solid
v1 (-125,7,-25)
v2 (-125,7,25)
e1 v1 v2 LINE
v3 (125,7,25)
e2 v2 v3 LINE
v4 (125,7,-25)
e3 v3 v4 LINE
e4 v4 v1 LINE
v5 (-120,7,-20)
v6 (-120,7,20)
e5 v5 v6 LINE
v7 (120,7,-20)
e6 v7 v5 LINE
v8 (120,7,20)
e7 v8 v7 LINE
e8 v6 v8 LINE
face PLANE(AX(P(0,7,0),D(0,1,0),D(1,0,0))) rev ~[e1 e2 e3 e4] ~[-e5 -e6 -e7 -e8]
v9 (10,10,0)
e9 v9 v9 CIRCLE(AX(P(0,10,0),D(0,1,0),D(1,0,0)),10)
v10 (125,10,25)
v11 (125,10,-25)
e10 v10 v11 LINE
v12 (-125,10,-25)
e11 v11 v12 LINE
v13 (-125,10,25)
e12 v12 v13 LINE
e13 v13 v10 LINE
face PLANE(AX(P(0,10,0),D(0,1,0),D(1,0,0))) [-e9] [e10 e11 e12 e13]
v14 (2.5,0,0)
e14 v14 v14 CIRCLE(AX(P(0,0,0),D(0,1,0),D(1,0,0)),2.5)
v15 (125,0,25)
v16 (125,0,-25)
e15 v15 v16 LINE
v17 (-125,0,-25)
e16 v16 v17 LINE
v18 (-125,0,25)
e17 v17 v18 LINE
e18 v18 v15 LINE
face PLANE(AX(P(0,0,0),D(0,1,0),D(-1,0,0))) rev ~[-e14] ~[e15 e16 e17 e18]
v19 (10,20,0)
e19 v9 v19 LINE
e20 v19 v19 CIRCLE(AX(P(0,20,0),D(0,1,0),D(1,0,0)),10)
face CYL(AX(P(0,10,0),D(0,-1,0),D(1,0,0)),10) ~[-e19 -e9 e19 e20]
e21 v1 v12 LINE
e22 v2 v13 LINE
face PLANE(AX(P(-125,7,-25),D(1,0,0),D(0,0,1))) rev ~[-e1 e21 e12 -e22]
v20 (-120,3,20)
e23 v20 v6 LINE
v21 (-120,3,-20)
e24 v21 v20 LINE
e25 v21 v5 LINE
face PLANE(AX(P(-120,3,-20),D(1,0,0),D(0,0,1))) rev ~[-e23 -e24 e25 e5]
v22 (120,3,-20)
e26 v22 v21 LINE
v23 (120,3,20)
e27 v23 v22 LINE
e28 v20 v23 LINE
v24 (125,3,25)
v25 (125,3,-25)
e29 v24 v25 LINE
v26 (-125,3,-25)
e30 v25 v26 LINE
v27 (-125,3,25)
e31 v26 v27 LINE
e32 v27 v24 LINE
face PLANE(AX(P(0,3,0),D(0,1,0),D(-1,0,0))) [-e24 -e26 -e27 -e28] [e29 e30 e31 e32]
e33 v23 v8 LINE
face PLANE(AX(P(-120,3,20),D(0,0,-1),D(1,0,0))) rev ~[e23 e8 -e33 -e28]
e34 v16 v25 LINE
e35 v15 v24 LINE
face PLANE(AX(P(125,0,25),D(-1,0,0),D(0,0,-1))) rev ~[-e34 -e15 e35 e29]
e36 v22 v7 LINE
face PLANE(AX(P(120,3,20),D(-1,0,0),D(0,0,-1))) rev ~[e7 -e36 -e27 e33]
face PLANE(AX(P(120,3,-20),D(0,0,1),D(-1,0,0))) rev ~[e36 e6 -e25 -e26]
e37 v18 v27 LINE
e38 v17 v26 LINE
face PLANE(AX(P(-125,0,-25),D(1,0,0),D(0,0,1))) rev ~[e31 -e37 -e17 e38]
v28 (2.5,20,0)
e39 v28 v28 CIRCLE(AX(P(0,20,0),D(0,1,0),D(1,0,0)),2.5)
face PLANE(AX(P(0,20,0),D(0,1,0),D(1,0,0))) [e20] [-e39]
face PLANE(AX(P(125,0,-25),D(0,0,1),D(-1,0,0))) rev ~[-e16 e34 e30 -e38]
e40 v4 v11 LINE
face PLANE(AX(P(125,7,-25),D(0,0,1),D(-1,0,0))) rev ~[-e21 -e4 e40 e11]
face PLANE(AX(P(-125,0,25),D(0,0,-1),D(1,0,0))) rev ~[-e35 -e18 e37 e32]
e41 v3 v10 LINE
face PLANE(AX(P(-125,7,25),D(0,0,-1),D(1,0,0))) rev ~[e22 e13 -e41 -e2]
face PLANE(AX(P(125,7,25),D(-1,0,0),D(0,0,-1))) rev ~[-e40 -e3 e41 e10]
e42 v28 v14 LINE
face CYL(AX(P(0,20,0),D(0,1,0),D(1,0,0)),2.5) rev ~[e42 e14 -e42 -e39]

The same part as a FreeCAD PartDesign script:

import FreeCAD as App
import Part
import Sketcher

V = App.Vector
Q = App.Units.Quantity

doc = App.newDocument("Part")
body = doc.addObject("PartDesign::Body", "Body")

sketch1 = body.newObject("Sketcher::SketchObject", "Sketch")
sketch1.AttachmentSupport = (doc.getObject("XZ_Plane"), [""])
sketch1.MapMode = "FlatFace"
sketch1.addGeometry([
    Part.LineSegment(V(125, 25, 0), V(125, -25, 0)),
    Part.LineSegment(V(125, -25, 0), V(-125, -25, 0)),
    Part.LineSegment(V(-125, -25, 0), V(-125, 25, 0)),
    Part.LineSegment(V(-125, 25, 0), V(125, 25, 0)),
], False)
sketch1.addConstraint([
    Sketcher.Constraint("Coincident", 0, 2, 1, 1),
    Sketcher.Constraint("Coincident", 1, 2, 2, 1),
    Sketcher.Constraint("Coincident", 2, 2, 3, 1),
    Sketcher.Constraint("Coincident", 3, 2, 0, 1),
    Sketcher.Constraint("Vertical", 0),
    Sketcher.Constraint("Horizontal", 1),
    Sketcher.Constraint("Vertical", 2),
    Sketcher.Constraint("Horizontal", 3),
    Sketcher.Constraint("Symmetric", 0, 2, 2, 2, -1, 1),
    Sketcher.Constraint("DistanceX", 1, 2, 1, 1, Q("250 mm")),
    Sketcher.Constraint("DistanceY", 0, 2, 0, 1, Q("50 mm")),
])
pad1 = body.newObject("PartDesign::Pad", "Pad")
pad1.Profile = sketch1
pad1.Length = 3
pad1.Reversed = True

sketch2 = body.newObject("Sketcher::SketchObject", "Sketch001")
sketch2.AttachmentSupport = (doc.getObject("XZ_Plane"), [""])
sketch2.MapMode = "FlatFace"
sketch2.AttachmentOffset = App.Placement(V(0, 0, -3), App.Rotation())
sketch2.addGeometry([
    Part.LineSegment(V(120, 20, 0), V(120, -20, 0)),
    Part.LineSegment(V(120, -20, 0), V(-120, -20, 0)),
    Part.LineSegment(V(-120, -20, 0), V(-120, 20, 0)),
    Part.LineSegment(V(-120, 20, 0), V(120, 20, 0)),
], False)
sketch2.addConstraint([
    Sketcher.Constraint("Coincident", 0, 2, 1, 1),
    Sketcher.Constraint("Coincident", 1, 2, 2, 1),
    Sketcher.Constraint("Coincident", 2, 2, 3, 1),
    Sketcher.Constraint("Coincident", 3, 2, 0, 1),
    Sketcher.Constraint("Vertical", 0),
    Sketcher.Constraint("Horizontal", 1),
    Sketcher.Constraint("Vertical", 2),
    Sketcher.Constraint("Horizontal", 3),
    Sketcher.Constraint("Symmetric", 0, 2, 2, 2, -1, 1),
    Sketcher.Constraint("DistanceX", 1, 2, 1, 1, Q("240 mm")),
    Sketcher.Constraint("DistanceY", 0, 2, 0, 1, Q("40 mm")),
])
pad2 = body.newObject("PartDesign::Pad", "Pad001")
pad2.Profile = sketch2
pad2.Length = 4
pad2.Reversed = True

sketch3 = body.newObject("Sketcher::SketchObject", "Sketch002")
sketch3.AttachmentSupport = (doc.getObject("XZ_Plane"), [""])
sketch3.MapMode = "FlatFace"
sketch3.AttachmentOffset = App.Placement(V(0, 0, -7), App.Rotation())
sketch3.addGeometry([
    Part.LineSegment(V(125, 25, 0), V(125, -25, 0)),
    Part.LineSegment(V(125, -25, 0), V(-125, -25, 0)),
    Part.LineSegment(V(-125, -25, 0), V(-125, 25, 0)),
    Part.LineSegment(V(-125, 25, 0), V(125, 25, 0)),
], False)
sketch3.addConstraint([
    Sketcher.Constraint("Coincident", 0, 2, 1, 1),
    Sketcher.Constraint("Coincident", 1, 2, 2, 1),
    Sketcher.Constraint("Coincident", 2, 2, 3, 1),
    Sketcher.Constraint("Coincident", 3, 2, 0, 1),
    Sketcher.Constraint("Vertical", 0),
    Sketcher.Constraint("Horizontal", 1),
    Sketcher.Constraint("Vertical", 2),
    Sketcher.Constraint("Horizontal", 3),
    Sketcher.Constraint("Symmetric", 0, 2, 2, 2, -1, 1),
    Sketcher.Constraint("DistanceX", 1, 2, 1, 1, Q("250 mm")),
    Sketcher.Constraint("DistanceY", 0, 2, 0, 1, Q("50 mm")),
])
pad3 = body.newObject("PartDesign::Pad", "Pad002")
pad3.Profile = sketch3
pad3.Length = 3
pad3.Reversed = True

sketch4 = body.newObject("Sketcher::SketchObject", "Sketch003")
sketch4.AttachmentSupport = (doc.getObject("XZ_Plane"), [""])
sketch4.MapMode = "FlatFace"
sketch4.AttachmentOffset = App.Placement(V(0, 0, -10), App.Rotation())
sketch4.addGeometry(Part.Circle(V(0, 0, 0), V(0, 0, 1), 10), False)
sketch4.addConstraint([
    Sketcher.Constraint("Coincident", 0, 3, -1, 1),
    Sketcher.Constraint("Diameter", 0, Q("20 mm")),
])
pad4 = body.newObject("PartDesign::Pad", "Pad003")
pad4.Profile = sketch4
pad4.Length = 10
pad4.Reversed = True

sketch5 = body.newObject("Sketcher::SketchObject", "Sketch004")
sketch5.AttachmentSupport = (doc.getObject("XZ_Plane"), [""])
sketch5.MapMode = "FlatFace"
sketch5.AttachmentOffset = App.Placement(V(0, 0, -20), App.Rotation())
sketch5.addGeometry(Part.Circle(V(0, 0, 0), V(0, 0, 1), 2.5), False)
sketch5.addConstraint([
    Sketcher.Constraint("Coincident", 0, 3, -1, 1),
    Sketcher.Constraint("Diameter", 0, Q("5 mm")),
])
pocket1 = body.newObject("PartDesign::Pocket", "Pocket")
pocket1.Profile = sketch5
pocket1.Length = 30
pocket1.Reversed = True

doc.recompute()
